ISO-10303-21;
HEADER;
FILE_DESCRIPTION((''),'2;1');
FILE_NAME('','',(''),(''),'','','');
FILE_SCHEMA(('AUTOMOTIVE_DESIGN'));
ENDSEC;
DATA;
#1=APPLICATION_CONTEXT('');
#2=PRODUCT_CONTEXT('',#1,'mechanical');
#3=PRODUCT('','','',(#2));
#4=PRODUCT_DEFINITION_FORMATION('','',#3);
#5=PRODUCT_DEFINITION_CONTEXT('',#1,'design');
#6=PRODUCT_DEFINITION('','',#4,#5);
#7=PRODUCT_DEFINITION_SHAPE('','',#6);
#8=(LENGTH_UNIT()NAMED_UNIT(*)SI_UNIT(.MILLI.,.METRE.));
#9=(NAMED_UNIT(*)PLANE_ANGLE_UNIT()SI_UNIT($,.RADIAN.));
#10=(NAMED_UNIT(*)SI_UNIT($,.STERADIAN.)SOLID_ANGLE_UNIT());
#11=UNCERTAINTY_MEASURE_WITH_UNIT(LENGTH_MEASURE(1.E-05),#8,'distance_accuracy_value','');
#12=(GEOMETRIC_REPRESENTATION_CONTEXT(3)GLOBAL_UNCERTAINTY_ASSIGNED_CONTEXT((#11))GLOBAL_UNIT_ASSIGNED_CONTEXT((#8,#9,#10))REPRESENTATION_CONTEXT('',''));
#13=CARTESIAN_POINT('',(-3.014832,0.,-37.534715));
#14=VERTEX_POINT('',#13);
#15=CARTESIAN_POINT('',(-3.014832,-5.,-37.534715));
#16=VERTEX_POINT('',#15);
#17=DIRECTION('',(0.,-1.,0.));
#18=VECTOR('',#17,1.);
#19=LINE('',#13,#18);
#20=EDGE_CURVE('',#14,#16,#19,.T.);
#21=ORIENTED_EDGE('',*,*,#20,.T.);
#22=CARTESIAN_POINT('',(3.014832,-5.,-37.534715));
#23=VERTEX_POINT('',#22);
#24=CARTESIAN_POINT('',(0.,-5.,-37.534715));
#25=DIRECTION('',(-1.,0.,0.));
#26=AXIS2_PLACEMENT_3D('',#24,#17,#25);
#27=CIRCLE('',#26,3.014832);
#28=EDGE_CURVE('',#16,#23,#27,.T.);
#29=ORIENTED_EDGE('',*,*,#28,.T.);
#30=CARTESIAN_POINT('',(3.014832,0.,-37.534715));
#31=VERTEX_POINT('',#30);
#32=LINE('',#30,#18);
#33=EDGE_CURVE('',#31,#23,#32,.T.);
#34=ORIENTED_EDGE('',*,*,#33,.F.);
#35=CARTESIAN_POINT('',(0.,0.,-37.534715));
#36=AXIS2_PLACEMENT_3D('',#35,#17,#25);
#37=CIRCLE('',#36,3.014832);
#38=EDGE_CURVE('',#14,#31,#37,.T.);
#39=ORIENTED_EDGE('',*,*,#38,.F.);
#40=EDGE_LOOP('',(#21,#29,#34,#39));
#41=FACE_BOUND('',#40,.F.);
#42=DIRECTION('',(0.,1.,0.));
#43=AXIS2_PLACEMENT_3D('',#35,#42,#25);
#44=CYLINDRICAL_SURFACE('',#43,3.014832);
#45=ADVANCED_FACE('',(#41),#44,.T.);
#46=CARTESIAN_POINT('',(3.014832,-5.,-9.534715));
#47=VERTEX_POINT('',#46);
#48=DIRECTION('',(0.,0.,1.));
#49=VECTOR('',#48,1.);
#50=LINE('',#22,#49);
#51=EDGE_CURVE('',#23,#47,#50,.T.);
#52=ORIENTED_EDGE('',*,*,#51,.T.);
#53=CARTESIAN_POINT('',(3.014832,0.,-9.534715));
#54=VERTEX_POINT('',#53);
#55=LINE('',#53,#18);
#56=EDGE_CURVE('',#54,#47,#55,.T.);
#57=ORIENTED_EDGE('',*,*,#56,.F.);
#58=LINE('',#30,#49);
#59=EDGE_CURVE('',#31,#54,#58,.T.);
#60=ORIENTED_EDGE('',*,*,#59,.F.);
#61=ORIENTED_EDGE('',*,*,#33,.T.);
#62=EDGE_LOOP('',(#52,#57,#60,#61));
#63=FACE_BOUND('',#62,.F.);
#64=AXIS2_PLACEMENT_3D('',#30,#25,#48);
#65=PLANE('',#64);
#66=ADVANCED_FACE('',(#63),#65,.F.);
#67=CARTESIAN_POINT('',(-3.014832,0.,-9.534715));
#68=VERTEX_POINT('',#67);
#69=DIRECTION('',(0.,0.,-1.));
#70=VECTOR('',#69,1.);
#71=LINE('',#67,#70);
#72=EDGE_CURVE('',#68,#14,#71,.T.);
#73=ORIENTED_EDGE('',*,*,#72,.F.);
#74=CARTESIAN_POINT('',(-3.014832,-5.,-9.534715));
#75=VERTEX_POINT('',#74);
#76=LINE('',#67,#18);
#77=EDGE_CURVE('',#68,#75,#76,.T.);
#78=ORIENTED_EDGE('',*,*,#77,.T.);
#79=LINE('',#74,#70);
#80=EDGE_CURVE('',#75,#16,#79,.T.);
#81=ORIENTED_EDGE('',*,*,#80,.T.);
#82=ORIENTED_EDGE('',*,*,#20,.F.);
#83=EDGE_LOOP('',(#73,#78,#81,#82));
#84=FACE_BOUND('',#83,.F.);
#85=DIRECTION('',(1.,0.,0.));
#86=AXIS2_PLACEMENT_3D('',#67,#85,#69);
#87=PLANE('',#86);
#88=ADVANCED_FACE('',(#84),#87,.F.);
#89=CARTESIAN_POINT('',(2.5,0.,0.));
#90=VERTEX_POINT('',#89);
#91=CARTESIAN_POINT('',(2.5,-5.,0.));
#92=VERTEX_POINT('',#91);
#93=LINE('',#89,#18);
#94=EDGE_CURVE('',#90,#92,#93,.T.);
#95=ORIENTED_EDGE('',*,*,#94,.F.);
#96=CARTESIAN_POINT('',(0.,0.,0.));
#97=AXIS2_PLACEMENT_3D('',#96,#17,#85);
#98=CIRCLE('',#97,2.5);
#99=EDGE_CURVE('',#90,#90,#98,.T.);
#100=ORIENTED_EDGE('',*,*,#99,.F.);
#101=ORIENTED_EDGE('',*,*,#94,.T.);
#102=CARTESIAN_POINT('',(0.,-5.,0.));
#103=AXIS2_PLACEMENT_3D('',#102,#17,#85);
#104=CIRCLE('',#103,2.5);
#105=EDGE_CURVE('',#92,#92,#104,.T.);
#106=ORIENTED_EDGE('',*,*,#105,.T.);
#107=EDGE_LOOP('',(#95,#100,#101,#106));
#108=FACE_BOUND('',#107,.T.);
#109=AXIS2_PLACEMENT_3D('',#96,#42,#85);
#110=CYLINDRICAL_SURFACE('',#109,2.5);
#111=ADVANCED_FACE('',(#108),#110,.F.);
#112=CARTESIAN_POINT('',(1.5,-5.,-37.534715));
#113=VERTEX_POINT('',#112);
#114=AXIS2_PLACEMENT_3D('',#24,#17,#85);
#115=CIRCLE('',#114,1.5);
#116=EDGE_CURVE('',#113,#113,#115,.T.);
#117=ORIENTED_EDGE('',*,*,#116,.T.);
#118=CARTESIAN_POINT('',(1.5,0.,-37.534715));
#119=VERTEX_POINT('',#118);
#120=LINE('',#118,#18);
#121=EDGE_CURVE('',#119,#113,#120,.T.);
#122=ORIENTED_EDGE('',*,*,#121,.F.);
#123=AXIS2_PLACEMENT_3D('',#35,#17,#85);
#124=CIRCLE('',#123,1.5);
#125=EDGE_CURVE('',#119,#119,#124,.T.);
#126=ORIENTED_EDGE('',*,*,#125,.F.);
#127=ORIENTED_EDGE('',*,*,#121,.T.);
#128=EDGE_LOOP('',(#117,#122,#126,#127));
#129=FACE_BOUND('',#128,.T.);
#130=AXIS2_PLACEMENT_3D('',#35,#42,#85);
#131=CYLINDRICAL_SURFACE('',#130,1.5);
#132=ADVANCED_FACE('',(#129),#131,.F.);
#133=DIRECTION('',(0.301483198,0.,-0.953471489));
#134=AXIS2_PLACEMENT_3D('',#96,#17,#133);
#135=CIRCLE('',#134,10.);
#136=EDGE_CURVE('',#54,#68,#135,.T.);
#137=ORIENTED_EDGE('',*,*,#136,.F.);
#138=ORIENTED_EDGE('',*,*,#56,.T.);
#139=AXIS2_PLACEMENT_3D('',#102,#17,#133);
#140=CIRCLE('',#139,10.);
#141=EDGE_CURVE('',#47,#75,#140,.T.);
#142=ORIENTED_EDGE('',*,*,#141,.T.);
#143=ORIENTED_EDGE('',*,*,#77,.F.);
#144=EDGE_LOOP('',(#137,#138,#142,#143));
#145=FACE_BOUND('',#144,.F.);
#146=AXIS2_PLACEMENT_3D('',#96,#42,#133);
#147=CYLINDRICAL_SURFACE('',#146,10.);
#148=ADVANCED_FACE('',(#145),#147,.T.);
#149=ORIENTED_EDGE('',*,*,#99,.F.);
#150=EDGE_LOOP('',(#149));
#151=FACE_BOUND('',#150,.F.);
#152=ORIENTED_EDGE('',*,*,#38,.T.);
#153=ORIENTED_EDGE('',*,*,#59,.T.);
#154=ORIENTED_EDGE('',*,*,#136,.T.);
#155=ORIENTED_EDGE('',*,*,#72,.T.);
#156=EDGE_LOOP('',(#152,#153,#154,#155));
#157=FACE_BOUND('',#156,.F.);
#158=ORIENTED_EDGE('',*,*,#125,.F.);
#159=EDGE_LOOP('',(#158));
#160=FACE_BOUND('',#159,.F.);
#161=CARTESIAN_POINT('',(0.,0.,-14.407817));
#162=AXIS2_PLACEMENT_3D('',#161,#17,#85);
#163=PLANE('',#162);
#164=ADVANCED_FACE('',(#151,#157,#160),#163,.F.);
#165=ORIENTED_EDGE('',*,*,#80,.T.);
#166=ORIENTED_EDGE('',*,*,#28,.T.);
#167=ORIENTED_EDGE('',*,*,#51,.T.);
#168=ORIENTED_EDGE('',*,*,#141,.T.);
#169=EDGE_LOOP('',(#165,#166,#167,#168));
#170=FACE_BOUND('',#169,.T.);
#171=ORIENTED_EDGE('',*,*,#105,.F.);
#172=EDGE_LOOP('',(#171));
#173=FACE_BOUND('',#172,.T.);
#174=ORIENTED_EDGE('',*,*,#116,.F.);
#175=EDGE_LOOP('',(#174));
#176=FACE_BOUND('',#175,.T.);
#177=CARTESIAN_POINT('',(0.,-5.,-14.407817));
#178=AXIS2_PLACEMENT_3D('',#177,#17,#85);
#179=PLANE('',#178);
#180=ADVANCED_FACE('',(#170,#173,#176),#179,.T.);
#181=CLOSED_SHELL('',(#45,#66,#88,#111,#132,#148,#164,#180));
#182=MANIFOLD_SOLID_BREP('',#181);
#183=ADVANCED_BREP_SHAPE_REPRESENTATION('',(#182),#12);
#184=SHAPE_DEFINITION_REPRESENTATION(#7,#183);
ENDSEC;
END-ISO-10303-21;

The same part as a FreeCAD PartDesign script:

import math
import FreeCAD as App
import Part
import Sketcher
from FreeCAD import Vector

doc = App.newDocument("Part")
body = doc.addObject("PartDesign::Body", "Body")

# Sketch on XZ plane
sketch1 = doc.addObject("Sketcher::SketchObject", "Sketch")
body.addObject(sketch1)
sketch1.AttachmentSupport = (doc.XZ_Plane, [""])
sketch1.MapMode = "FlatFace"
sketch1.addGeometry([
    Part.LineSegment(Vector(3, -37.5, 0), Vector(3, -9.5, 0)),  # 0
    Part.ArcOfCircle(Part.Circle(Vector(0, 0, 0), Vector(0, 0, 1), 10), math.radians(-72), math.radians(252)),  # 1
    Part.LineSegment(Vector(-3, -9.5, 0), Vector(-3, -37.5, 0)),  # 2
    Part.ArcOfCircle(Part.Circle(Vector(0, -37.5, 0), Vector(0, 0, 1), 3), math.radians(180), math.radians(360)),  # 3
    Part.Circle(Vector(0, -37.5, 0), Vector(0, 0, 1), 1.5),  # 4
    Part.Circle(Vector(0, 0, 0), Vector(0, 0, 1), 2.5),  # 5
], False)
sketch1.addConstraint([
    Sketcher.Constraint("Coincident", 0, 2, 1, 1),
    Sketcher.Constraint("Coincident", 1, 2, 2, 1),
    Sketcher.Constraint("Tangent", 2, 2, 3, 1),
    Sketcher.Constraint("Tangent", 3, 2, 0, 1),
    Sketcher.Constraint("Vertical", 0),
    Sketcher.Constraint("Vertical", 2),
    Sketcher.Constraint("Coincident", 1, 3, -1, 1),
    Sketcher.Constraint("Coincident", 5, 3, -1, 1),
    Sketcher.Constraint("Coincident", 4, 3, 3, 3),
    Sketcher.Constraint("PointOnObject", 3, 3, -2),
    Sketcher.Constraint("Diameter", 4, 3.0),
    Sketcher.Constraint("Diameter", 5, 5.0),
    Sketcher.Constraint("Radius", 1, 10.0),
    Sketcher.Constraint("DistanceY", 0, 1, 0, 2, 28.0),
    Sketcher.Constraint("Radius", 3, 3.014832),
])
pad1 = doc.addObject("PartDesign::Pad", "Pad")
body.addObject(pad1)
pad1.Profile = sketch1
pad1.Length = 5

doc.recompute()
